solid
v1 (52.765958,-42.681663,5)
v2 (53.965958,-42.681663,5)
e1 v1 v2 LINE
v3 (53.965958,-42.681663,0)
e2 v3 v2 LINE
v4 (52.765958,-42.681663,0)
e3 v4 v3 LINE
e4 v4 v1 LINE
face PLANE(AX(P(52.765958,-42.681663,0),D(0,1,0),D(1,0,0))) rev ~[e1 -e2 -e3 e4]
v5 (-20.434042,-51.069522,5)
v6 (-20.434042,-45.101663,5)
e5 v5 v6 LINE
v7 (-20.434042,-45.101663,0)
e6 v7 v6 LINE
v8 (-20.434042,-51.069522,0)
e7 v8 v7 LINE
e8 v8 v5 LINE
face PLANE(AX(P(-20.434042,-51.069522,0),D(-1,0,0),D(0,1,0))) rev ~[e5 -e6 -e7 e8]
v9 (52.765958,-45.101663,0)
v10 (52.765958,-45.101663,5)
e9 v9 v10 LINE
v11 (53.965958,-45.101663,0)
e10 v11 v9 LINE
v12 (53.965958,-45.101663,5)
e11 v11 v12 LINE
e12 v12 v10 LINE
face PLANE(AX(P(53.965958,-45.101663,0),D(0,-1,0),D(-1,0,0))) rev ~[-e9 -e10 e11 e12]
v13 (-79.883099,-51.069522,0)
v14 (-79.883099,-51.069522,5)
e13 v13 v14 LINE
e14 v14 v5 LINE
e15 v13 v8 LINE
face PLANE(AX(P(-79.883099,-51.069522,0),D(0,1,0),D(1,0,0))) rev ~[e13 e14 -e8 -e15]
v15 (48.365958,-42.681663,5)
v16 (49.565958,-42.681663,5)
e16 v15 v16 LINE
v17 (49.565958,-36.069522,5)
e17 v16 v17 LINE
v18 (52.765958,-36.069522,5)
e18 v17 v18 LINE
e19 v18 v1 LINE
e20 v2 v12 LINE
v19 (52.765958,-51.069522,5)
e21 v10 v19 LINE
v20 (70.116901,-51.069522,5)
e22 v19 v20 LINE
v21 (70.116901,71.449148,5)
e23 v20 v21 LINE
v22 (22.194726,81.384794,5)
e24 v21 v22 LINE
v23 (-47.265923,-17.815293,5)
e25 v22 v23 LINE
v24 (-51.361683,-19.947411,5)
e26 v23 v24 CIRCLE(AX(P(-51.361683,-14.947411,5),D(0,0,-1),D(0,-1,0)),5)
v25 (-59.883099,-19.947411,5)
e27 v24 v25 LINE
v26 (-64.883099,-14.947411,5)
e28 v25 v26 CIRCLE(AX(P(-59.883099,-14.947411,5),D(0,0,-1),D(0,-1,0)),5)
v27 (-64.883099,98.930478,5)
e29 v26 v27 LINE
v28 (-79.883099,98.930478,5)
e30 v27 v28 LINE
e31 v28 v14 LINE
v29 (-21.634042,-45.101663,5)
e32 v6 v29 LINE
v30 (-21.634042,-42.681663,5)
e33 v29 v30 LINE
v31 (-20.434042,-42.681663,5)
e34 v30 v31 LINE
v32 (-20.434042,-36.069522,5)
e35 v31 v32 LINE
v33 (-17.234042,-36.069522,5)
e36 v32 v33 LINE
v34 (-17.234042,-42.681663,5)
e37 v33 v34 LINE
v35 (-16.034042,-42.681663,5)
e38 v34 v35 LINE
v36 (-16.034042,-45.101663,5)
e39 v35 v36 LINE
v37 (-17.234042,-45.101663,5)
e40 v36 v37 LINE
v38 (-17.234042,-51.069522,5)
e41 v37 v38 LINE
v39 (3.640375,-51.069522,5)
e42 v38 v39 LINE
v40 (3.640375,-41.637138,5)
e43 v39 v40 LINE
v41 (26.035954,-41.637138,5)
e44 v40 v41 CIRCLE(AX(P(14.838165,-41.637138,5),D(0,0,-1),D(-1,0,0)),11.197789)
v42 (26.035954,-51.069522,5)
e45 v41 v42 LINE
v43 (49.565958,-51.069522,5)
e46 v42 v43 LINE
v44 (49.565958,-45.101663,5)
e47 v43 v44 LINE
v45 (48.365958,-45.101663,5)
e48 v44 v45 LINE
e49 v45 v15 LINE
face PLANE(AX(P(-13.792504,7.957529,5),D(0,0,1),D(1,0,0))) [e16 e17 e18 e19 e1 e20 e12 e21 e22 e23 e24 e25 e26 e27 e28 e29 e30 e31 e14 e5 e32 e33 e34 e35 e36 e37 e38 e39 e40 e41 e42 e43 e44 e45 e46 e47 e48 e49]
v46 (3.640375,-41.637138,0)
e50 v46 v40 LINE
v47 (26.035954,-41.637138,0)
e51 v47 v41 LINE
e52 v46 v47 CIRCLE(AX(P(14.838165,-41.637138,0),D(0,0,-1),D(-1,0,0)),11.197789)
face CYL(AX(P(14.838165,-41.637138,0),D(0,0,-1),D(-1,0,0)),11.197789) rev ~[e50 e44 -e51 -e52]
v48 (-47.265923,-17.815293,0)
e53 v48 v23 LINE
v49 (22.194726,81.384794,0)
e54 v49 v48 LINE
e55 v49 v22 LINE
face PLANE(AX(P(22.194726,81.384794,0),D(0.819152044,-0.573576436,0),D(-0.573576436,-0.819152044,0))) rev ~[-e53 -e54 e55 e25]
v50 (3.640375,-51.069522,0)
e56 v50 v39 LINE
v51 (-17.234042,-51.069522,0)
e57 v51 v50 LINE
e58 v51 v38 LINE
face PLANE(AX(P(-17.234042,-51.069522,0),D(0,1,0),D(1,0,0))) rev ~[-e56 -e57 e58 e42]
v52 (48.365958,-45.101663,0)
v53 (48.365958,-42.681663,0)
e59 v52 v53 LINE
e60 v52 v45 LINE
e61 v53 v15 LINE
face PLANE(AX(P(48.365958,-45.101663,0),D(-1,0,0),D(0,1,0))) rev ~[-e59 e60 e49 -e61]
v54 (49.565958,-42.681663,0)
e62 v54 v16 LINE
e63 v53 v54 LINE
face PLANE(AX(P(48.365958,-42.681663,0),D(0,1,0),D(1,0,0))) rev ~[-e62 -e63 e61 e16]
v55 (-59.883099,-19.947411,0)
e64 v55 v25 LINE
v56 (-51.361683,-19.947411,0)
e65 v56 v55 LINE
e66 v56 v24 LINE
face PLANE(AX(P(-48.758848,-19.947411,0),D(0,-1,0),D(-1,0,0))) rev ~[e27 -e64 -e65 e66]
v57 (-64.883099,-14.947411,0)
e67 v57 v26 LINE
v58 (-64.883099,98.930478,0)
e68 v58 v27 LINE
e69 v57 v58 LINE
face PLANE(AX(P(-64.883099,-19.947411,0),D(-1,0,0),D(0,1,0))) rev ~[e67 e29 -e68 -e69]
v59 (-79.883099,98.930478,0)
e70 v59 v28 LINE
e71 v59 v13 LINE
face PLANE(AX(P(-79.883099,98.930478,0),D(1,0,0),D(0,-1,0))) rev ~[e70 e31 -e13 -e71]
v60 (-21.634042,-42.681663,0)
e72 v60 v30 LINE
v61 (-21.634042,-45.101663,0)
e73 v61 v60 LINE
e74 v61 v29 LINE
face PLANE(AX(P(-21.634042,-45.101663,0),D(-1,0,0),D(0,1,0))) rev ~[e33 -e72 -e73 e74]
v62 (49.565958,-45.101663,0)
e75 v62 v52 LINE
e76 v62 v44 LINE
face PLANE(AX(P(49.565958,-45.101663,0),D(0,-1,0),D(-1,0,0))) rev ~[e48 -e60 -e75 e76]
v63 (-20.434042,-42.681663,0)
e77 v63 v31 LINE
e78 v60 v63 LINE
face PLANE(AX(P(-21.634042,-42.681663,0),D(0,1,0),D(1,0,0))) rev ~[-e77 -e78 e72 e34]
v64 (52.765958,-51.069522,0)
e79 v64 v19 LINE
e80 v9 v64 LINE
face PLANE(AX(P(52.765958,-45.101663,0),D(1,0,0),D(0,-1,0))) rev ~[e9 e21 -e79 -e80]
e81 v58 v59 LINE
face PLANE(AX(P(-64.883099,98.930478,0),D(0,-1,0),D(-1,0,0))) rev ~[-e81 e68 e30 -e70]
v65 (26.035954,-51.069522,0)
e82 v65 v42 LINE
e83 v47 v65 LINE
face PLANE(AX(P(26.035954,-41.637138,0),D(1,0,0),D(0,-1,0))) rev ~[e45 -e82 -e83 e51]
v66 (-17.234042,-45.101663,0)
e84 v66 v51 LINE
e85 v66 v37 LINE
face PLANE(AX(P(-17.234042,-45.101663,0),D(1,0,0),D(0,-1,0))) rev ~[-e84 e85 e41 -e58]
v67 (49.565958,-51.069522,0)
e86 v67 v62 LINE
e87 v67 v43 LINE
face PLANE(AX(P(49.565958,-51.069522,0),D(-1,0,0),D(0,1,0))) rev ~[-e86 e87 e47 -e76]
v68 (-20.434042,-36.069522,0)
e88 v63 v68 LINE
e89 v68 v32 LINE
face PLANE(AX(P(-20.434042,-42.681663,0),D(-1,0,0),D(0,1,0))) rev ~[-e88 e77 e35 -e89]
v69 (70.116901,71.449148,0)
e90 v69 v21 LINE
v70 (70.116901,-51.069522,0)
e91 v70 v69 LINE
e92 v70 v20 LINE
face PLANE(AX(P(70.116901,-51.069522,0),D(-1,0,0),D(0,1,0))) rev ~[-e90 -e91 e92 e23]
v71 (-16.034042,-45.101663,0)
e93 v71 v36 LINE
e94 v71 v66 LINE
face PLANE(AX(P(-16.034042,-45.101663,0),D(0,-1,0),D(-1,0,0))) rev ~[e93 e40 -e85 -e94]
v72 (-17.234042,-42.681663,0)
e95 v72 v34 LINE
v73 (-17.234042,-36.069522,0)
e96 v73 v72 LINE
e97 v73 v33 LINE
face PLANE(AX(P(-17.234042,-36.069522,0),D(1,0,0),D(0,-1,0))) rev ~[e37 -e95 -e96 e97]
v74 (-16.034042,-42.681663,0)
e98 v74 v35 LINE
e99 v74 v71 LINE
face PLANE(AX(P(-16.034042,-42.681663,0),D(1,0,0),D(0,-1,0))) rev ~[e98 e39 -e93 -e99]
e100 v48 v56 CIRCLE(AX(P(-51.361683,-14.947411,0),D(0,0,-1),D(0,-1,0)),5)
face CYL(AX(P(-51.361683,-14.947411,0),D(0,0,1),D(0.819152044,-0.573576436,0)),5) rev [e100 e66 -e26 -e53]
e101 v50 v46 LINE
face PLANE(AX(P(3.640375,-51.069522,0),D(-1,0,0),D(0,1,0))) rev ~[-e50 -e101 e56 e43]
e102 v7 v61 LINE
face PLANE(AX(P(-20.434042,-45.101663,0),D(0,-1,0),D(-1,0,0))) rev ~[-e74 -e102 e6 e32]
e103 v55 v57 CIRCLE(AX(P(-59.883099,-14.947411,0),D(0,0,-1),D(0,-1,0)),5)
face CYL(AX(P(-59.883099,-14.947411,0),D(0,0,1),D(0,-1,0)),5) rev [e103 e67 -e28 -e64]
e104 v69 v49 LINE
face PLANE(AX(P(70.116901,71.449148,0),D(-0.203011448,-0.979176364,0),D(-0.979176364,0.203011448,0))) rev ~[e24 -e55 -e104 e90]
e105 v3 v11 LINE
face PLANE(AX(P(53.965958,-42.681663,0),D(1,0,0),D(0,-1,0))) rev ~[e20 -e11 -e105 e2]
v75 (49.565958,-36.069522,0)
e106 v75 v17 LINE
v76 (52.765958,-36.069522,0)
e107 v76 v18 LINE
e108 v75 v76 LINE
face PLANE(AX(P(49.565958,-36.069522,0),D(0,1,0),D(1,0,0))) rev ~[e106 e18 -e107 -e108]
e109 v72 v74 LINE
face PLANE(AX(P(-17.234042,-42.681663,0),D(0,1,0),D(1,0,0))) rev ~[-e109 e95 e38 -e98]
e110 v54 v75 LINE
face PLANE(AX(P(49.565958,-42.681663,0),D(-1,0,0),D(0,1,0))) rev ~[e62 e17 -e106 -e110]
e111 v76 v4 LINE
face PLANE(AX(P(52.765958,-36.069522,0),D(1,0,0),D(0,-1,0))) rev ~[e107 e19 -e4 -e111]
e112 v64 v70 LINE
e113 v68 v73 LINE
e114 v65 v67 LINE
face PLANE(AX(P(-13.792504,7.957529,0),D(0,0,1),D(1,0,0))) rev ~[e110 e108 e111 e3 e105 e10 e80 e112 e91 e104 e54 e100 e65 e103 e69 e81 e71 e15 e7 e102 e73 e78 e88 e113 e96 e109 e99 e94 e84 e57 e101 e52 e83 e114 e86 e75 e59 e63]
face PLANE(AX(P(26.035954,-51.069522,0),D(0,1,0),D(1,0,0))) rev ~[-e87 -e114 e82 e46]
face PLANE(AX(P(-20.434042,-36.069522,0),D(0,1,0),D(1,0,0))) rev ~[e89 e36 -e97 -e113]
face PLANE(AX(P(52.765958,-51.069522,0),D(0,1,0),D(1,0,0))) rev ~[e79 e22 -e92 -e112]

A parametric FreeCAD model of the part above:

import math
import FreeCAD as App
import Part
import Sketcher
from FreeCAD import Vector
Q = App.Units.Quantity


def edges_at(feature, points):
    """Names of the edges that pass closest to the given points."""
    edges = feature.Shape.Edges
    near = lambda p: min(range(len(edges)), key=lambda i: edges[i].distToShape(Part.Vertex(*p))[0])
    return sorted({f"Edge{near(p) + 1}" for p in points})

doc = App.newDocument("Part")
body = doc.addObject("PartDesign::Body", "Body")

# Sketch on XY plane
sketch1 = body.newObject("Sketcher::SketchObject", "Sketch")
sketch1.AttachmentSupport = (doc.getObject("XY_Plane"), [""])
sketch1.MapMode = "FlatFace"
sketch1.addGeometry([
    Part.LineSegment(Vector(-79.9, 98.9, 0), Vector(-79.9, -51.1, 0)),  # 0
    Part.LineSegment(Vector(-79.9, -51.1, 0), Vector(-20.4, -51.1, 0)),  # 1
    Part.LineSegment(Vector(-20.4, -51.1, 0), Vector(-20.4, -45.1, 0)),  # 2
    Part.LineSegment(Vector(-20.4, -45.1, 0), Vector(-21.6, -45.1, 0)),  # 3
    Part.LineSegment(Vector(-21.6, -45.1, 0), Vector(-21.6, -42.7, 0)),  # 4
    Part.LineSegment(Vector(-21.6, -42.7, 0), Vector(-20.4, -42.7, 0)),  # 5
    Part.LineSegment(Vector(-20.4, -42.7, 0), Vector(-20.4, -36.1, 0)),  # 6
    Part.LineSegment(Vector(-20.4, -36.1, 0), Vector(-17.2, -36.1, 0)),  # 7
    Part.LineSegment(Vector(-17.2, -36.1, 0), Vector(-17.2, -42.7, 0)),  # 8
    Part.LineSegment(Vector(-17.2, -42.7, 0), Vector(-16, -42.7, 0)),  # 9
    Part.LineSegment(Vector(-16, -42.7, 0), Vector(-16, -45.1, 0)),  # 10
    Part.LineSegment(Vector(-16, -45.1, 0), Vector(-17.2, -45.1, 0)),  # 11
    Part.LineSegment(Vector(-17.2, -45.1, 0), Vector(-17.2, -51.1, 0)),  # 12
    Part.LineSegment(Vector(-17.2, -51.1, 0), Vector(3.6, -51.1, 0)),  # 13
    Part.LineSegment(Vector(3.6, -51.1, 0), Vector(3.6, -41.6, 0)),  # 14
    Part.ArcOfCircle(Part.Circle(Vector(14.8, -41.6, 0), Vector(0, 0, 1), 11.2), math.radians(0), math.radians(180)),  # 15
    Part.LineSegment(Vector(26, -41.6, 0), Vector(26, -51.1, 0)),  # 16
    Part.LineSegment(Vector(26, -51.1, 0), Vector(49.6, -51.1, 0)),  # 17
    Part.LineSegment(Vector(49.6, -51.1, 0), Vector(49.6, -45.1, 0)),  # 18
    Part.LineSegment(Vector(49.6, -45.1, 0), Vector(48.4, -45.1, 0)),  # 19
    Part.LineSegment(Vector(48.4, -45.1, 0), Vector(48.4, -42.7, 0)),  # 20
    Part.LineSegment(Vector(48.4, -42.7, 0), Vector(49.6, -42.7, 0)),  # 21
    Part.LineSegment(Vector(49.6, -42.7, 0), Vector(49.6, -36.1, 0)),  # 22
    Part.LineSegment(Vector(49.6, -36.1, 0), Vector(52.8, -36.1, 0)),  # 23
    Part.LineSegment(Vector(52.8, -36.1, 0), Vector(52.8, -42.7, 0)),  # 24
    Part.LineSegment(Vector(52.8, -42.7, 0), Vector(54, -42.7, 0)),  # 25
    Part.LineSegment(Vector(54, -42.7, 0), Vector(54, -45.1, 0)),  # 26
    Part.LineSegment(Vector(54, -45.1, 0), Vector(52.8, -45.1, 0)),  # 27
    Part.LineSegment(Vector(52.8, -45.1, 0), Vector(52.8, -51.1, 0)),  # 28
    Part.LineSegment(Vector(52.8, -51.1, 0), Vector(70.1, -51.1, 0)),  # 29
    Part.LineSegment(Vector(70.1, -51.1, 0), Vector(70.1, 71.4, 0)),  # 30
    Part.LineSegment(Vector(70.1, 71.4, 0), Vector(22.2, 81.4, 0)),  # 31
    Part.LineSegment(Vector(22.2, 81.4, 0), Vector(-48.8, -19.9, 0)),  # 32
    Part.LineSegment(Vector(-48.8, -19.9, 0), Vector(-64.9, -19.9, 0)),  # 33
    Part.LineSegment(Vector(-64.9, -19.9, 0), Vector(-64.9, 98.9, 0)),  # 34
    Part.LineSegment(Vector(-64.9, 98.9, 0), Vector(-79.9, 98.9, 0)),  # 35
], False)
sketch1.addConstraint([
    Sketcher.Constraint("Coincident", 0, 2, 1, 1),
    Sketcher.Constraint("Coincident", 1, 2, 2, 1),
    Sketcher.Constraint("Coincident", 2, 2, 3, 1),
    Sketcher.Constraint("Coincident", 3, 2, 4, 1),
    Sketcher.Constraint("Coincident", 4, 2, 5, 1),
    Sketcher.Constraint("Coincident", 5, 2, 6, 1),
    Sketcher.Constraint("Coincident", 6, 2, 7, 1),
    Sketcher.Constraint("Coincident", 7, 2, 8, 1),
    Sketcher.Constraint("Coincident", 8, 2, 9, 1),
    Sketcher.Constraint("Coincident", 9, 2, 10, 1),
    Sketcher.Constraint("Coincident", 10, 2, 11, 1),
    Sketcher.Constraint("Coincident", 11, 2, 12, 1),
    Sketcher.Constraint("Coincident", 12, 2, 13, 1),
    Sketcher.Constraint("Coincident", 13, 2, 14, 1),
    Sketcher.Constraint("Tangent", 14, 2, 15, 2),
    Sketcher.Constraint("Tangent", 15, 1, 16, 1),
    Sketcher.Constraint("Coincident", 16, 2, 17, 1),
    Sketcher.Constraint("Coincident", 17, 2, 18, 1),
    Sketcher.Constraint("Coincident", 18, 2, 19, 1),
    Sketcher.Constraint("Coincident", 19, 2, 20, 1),
    Sketcher.Constraint("Coincident", 20, 2, 21, 1),
    Sketcher.Constraint("Coincident", 21, 2, 22, 1),
    Sketcher.Constraint("Coincident", 22, 2, 23, 1),
    Sketcher.Constraint("Coincident", 23, 2, 24, 1),
    Sketcher.Constraint("Coincident", 24, 2, 25, 1),
    Sketcher.Constraint("Coincident", 25, 2, 26, 1),
    Sketcher.Constraint("Coincident", 26, 2, 27, 1),
    Sketcher.Constraint("Coincident", 27, 2, 28, 1),
    Sketcher.Constraint("Coincident", 28, 2, 29, 1),
    Sketcher.Constraint("Coincident", 29, 2, 30, 1),
    Sketcher.Constraint("Coincident", 30, 2, 31, 1),
    Sketcher.Constraint("Coincident", 31, 2, 32, 1),
    Sketcher.Constraint("Coincident", 32, 2, 33, 1),
    Sketcher.Constraint("Coincident", 33, 2, 34, 1),
    Sketcher.Constraint("Coincident", 34, 2, 35, 1),
    Sketcher.Constraint("Coincident", 35, 2, 0, 1),
    Sketcher.Constraint("Vertical", 0),
    Sketcher.Constraint("Horizontal", 1),
    Sketcher.Constraint("Vertical", 2),
    Sketcher.Constraint("Horizontal", 3),
    Sketcher.Constraint("Vertical", 4),
    Sketcher.Constraint("Horizontal", 5),
    Sketcher.Constraint("Vertical", 6),
    Sketcher.Constraint("Horizontal", 7),
    Sketcher.Constraint("Vertical", 8),
    Sketcher.Constraint("Horizontal", 9),
    Sketcher.Constraint("Vertical", 10),
    Sketcher.Constraint("Horizontal", 11),
    Sketcher.Constraint("Vertical", 12),
    Sketcher.Constraint("Horizontal", 13),
    Sketcher.Constraint("Vertical", 14),
    Sketcher.Constraint("Vertical", 16),
    Sketcher.Constraint("Horizontal", 17),
    Sketcher.Constraint("Vertical", 18),
    Sketcher.Constraint("Horizontal", 19),
    Sketcher.Constraint("Vertical", 20),
    Sketcher.Constraint("Horizontal", 21),
    Sketcher.Constraint("Vertical", 22),
    Sketcher.Constraint("Horizontal", 23),
    Sketcher.Constraint("Vertical", 24),
    Sketcher.Constraint("Horizontal", 25),
    Sketcher.Constraint("Vertical", 26),
    Sketcher.Constraint("Horizontal", 27),
    Sketcher.Constraint("Vertical", 28),
    Sketcher.Constraint("Horizontal", 29),
    Sketcher.Constraint("Vertical", 30),
    Sketcher.Constraint("Horizontal", 33),
    Sketcher.Constraint("Vertical", 34),
    Sketcher.Constraint("Horizontal", 35),
    Sketcher.Constraint("Horizontal", 5, 2, 8, 2),
    Sketcher.Constraint("Horizontal", 3, 2, 10, 2),
    Sketcher.Constraint("Horizontal", 1, 2, 12, 2),
    Sketcher.Constraint("Horizontal", 13, 2, 16, 2),
    Sketcher.Constraint("Horizontal", 11, 2, 18, 2),
    Sketcher.Constraint("Horizontal", 9, 2, 20, 2),
    Sketcher.Constraint("Horizontal", 7, 2, 22, 2),
    Sketcher.Constraint("Horizontal", 21, 2, 24, 2),
    Sketcher.Constraint("Horizontal", 19, 2, 26, 2),
    Sketcher.Constraint("Horizontal", 17, 2, 28, 2),
    Sketcher.Constraint("Vertical", 2, 2, 5, 2),
    Sketcher.Constraint("Vertical", 8, 2, 11, 2),
    Sketcher.Constraint("Vertical", 18, 2, 21, 2),
    Sketcher.Constraint("Vertical", 24, 2, 27, 2),
    Sketcher.Constraint("Equal", 5, 9),
    Sketcher.Constraint("Equal", 11, 19),
    Sketcher.Constraint("Equal", 7, 23),
    Sketcher.Constraint("Equal", 21, 25),
    Sketcher.Constraint("DistanceX", 35, 2, 35, 1, Q("15 mm")),
    Sketcher.Constraint("DistanceY", 0, 2, 0, 1, Q("150 mm")),
    Sketcher.Constraint("Angle", 32, Q("-125 deg")),
    Sketcher.Constraint("DistanceX", 3, 2, 3, 1, Q("1.2 mm")),
    Sketcher.Constraint("DistanceX", 7, 1, 7, 2, Q("3.2 mm")),
    Sketcher.Constraint("DistanceY", 1, 2, 6, 2, Q("15 mm")),
    Sketcher.Constraint("DistanceX", 34, 2, 30, 2, Q("135 mm")),
    Sketcher.Constraint("DistanceY", 4, 1, 4, 2, Q("2.42 mm")),
    Sketcher.Constraint("Radius", 15, Q("11.197789 mm")),
    Sketcher.Constraint("DistanceX", 33, 2, 33, 1, Q("16.124251 mm")),
    Sketcher.Constraint("DistanceY", 2, 1, 2, 2, Q("5.96786 mm")),
    Sketcher.Constraint("DistanceY", 30, 1, 30, 2, Q("122.51867 mm")),
    Sketcher.Constraint("DistanceY", 34, 1, 34, 2, Q("118.877888 mm")),
    Sketcher.Constraint("DistanceX", 0, 2, -1, 1, Q("79.883099 mm")),
    Sketcher.Constraint("Distance", 31, Q("48.941311 mm")),
    Sketcher.Constraint("DistanceX", 1, 1, 1, 2, Q("59.449057 mm")),
    Sketcher.Constraint("DistanceX", 13, 1, 13, 2, Q("20.874417 mm")),
    Sketcher.Constraint("DistanceX", 17, 1, 17, 2, Q("23.530004 mm")),
    Sketcher.Constraint("DistanceY", 14, 1, 14, 2, Q("9.432384 mm")),
    Sketcher.Constraint("DistanceY", 15, 3, -1, 1, Q("41.637138 mm")),
])
pad1 = body.newObject("PartDesign::Pad", "Pad")
pad1.Profile = sketch1
pad1.Length = 5
doc.recompute()

fillet = body.newObject("PartDesign::Fillet", "Fillet")
fillet.Base = (pad1, edges_at(pad1, [(-64.883, -19.947, 2.5), (-48.759, -19.947, 2.5)]))
fillet.Radius = 5

doc.recompute()
